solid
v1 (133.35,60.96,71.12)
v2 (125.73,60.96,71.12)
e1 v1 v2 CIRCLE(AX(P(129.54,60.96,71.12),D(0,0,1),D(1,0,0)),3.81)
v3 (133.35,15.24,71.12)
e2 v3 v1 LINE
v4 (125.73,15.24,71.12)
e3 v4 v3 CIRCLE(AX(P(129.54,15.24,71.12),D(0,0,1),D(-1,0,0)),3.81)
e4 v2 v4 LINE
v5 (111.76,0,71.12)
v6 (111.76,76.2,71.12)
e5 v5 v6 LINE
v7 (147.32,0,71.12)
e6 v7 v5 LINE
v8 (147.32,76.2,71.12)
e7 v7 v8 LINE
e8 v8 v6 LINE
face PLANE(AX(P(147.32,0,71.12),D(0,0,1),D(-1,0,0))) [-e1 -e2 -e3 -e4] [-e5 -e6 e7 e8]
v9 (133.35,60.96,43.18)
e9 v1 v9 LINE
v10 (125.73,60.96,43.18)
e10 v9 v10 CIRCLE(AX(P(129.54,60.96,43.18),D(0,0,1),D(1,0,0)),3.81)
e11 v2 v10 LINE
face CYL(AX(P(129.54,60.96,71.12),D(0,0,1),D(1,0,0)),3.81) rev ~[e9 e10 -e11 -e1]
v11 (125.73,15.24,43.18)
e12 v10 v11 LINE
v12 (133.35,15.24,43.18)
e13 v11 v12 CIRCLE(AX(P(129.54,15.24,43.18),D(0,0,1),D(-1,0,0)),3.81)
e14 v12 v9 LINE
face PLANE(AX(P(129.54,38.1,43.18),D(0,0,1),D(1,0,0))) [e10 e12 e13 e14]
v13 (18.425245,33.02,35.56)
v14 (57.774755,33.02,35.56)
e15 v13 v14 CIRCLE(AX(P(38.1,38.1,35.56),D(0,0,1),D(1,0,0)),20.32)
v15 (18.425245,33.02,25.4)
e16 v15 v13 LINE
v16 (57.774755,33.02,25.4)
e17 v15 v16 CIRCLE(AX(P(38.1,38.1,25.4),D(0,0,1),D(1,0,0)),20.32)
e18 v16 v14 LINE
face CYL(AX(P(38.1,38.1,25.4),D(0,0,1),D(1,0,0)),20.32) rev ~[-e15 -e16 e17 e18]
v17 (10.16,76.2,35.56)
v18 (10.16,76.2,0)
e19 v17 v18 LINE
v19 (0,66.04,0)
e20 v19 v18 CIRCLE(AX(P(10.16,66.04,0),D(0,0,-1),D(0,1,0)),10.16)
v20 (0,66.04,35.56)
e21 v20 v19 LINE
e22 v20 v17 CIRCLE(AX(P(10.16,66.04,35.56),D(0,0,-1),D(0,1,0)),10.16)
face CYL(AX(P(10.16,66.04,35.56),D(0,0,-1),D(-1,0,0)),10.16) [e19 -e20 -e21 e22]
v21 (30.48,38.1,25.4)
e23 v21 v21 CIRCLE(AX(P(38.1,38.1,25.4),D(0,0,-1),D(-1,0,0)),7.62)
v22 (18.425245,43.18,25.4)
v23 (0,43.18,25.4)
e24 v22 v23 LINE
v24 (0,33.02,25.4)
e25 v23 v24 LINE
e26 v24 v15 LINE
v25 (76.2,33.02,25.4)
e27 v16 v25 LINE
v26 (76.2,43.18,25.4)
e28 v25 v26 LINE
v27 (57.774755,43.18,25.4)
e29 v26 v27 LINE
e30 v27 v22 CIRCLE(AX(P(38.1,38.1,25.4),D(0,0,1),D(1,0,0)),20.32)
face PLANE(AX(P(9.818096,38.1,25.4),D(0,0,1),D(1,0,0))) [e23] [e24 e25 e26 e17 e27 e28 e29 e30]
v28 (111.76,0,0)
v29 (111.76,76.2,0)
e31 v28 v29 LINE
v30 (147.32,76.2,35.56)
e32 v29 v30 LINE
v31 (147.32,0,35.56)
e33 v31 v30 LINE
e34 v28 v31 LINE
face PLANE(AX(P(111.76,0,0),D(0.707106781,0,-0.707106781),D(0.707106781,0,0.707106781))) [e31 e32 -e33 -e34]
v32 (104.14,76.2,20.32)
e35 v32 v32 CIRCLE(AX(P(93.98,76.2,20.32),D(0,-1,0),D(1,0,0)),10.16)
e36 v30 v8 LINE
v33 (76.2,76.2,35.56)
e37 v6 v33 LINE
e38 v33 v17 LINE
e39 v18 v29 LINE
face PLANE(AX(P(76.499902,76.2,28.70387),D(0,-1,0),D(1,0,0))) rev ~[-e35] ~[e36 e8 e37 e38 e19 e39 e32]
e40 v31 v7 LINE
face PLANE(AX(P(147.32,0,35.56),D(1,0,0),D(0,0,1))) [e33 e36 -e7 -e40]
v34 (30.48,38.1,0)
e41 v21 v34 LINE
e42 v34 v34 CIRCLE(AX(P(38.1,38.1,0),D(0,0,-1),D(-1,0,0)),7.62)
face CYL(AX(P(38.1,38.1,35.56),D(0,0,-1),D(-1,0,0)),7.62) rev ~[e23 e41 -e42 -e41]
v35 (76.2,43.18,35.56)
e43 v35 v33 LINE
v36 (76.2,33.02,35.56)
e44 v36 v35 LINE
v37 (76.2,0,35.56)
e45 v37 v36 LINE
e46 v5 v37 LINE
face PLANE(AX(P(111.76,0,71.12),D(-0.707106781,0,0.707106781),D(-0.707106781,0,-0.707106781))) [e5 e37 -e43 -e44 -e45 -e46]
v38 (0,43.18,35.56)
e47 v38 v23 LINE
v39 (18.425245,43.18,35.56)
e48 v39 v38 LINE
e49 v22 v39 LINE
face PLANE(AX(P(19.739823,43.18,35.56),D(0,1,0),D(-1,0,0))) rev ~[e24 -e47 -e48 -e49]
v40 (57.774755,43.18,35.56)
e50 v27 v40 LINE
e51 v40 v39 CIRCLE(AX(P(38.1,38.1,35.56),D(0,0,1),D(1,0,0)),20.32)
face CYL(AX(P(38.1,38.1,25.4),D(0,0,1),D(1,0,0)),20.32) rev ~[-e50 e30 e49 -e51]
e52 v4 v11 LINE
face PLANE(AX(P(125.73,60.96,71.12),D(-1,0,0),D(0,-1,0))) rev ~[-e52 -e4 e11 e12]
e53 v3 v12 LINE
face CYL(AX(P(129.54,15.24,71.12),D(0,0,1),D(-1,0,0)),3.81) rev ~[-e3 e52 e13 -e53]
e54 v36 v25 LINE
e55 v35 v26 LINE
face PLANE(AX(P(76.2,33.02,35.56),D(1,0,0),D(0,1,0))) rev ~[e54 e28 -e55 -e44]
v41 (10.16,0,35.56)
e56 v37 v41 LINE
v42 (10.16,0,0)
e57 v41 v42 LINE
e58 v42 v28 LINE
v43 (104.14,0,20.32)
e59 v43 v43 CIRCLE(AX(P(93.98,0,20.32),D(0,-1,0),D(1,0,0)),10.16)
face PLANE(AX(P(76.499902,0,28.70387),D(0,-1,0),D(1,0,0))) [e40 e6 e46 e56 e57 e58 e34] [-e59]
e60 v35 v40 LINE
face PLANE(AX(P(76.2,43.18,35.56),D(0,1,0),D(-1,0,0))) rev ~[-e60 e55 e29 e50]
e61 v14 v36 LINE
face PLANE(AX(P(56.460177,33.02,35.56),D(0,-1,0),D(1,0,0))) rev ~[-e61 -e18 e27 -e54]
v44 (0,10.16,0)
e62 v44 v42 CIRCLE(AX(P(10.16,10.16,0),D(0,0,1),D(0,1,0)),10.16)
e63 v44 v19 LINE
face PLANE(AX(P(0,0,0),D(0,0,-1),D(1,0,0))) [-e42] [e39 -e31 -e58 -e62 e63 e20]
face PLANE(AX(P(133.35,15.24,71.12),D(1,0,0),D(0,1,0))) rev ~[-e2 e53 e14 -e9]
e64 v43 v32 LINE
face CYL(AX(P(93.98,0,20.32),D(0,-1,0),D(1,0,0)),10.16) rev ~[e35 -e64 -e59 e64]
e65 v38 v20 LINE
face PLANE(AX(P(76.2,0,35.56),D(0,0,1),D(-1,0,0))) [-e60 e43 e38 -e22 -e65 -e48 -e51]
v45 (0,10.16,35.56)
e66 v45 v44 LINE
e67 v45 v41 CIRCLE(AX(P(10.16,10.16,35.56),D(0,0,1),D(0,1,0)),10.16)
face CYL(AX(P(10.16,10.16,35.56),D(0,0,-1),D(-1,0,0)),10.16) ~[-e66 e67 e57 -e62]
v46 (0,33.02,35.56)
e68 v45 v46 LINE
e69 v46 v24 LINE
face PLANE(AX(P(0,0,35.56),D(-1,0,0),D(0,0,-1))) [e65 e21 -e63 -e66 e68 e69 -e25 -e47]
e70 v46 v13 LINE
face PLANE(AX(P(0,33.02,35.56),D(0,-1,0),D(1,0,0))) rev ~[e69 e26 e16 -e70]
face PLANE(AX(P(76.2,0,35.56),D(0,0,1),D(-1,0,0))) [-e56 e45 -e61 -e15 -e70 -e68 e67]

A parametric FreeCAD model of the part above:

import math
import FreeCAD as App
import Part
import Sketcher
Q = App.Units.Quantity


def edges_at(feature, points):
    """Names of the edges that pass closest to the given points."""
    edges = feature.Shape.Edges
    near = lambda p: min(range(len(edges)), key=lambda i: edges[i].distToShape(Part.Vertex(*p))[0])
    return sorted({f"Edge{near(p) + 1}" for p in points})

doc = App.newDocument("Part")
body = doc.addObject("PartDesign::Body", "Body")

# Sketch on XZ plane
sketch1 = body.newObject("Sketcher::SketchObject", "Sketch")
sketch1.AttachmentSupport = (doc.getObject("XZ_Plane"), [""])
sketch1.MapMode = "FlatFace"
sketch1.addGeometry(Part.LineSegment(App.Vector(0, 35.56, 0), App.Vector(0, 0, 0)), False)
sketch1.addGeometry(Part.LineSegment(App.Vector(0, 0, 0), App.Vector(111.76, 0, 0)), False)
sketch1.addGeometry(Part.LineSegment(App.Vector(111.76, 0, 0), App.Vector(147.32, 35.56, 0)), False)
sketch1.addGeometry(Part.LineSegment(App.Vector(147.32, 35.56, 0), App.Vector(147.32, 71.12, 0)), False)
sketch1.addGeometry(Part.LineSegment(App.Vector(147.32, 71.12, 0), App.Vector(111.76, 71.12, 0)), False)
sketch1.addGeometry(Part.LineSegment(App.Vector(111.76, 71.12, 0), App.Vector(76.2, 35.56, 0)), False)
sketch1.addGeometry(Part.LineSegment(App.Vector(76.2, 35.56, 0), App.Vector(0, 35.56, 0)), False)
sketch1.addConstraint(Sketcher.Constraint("Coincident", 0, 2, 1, 1))
sketch1.addConstraint(Sketcher.Constraint("Coincident", 1, 2, 2, 1))
sketch1.addConstraint(Sketcher.Constraint("Coincident", 2, 2, 3, 1))
sketch1.addConstraint(Sketcher.Constraint("Coincident", 3, 2, 4, 1))
sketch1.addConstraint(Sketcher.Constraint("Coincident", 4, 2, 5, 1))
sketch1.addConstraint(Sketcher.Constraint("Coincident", 5, 2, 6, 1))
sketch1.addConstraint(Sketcher.Constraint("Coincident", 6, 2, 0, 1))
sketch1.addConstraint(Sketcher.Constraint("Vertical", 0))
sketch1.addConstraint(Sketcher.Constraint("Horizontal", 1))
sketch1.addConstraint(Sketcher.Constraint("Vertical", 3))
sketch1.addConstraint(Sketcher.Constraint("Horizontal", 4))
sketch1.addConstraint(Sketcher.Constraint("Horizontal", 6))
sketch1.addConstraint(Sketcher.Constraint("Coincident", 0, 2, -1, 1))
sketch1.addConstraint(Sketcher.Constraint("Parallel", 2, 5))
sketch1.addConstraint(Sketcher.Constraint("Horizontal", 2, 2, 5, 2))
sketch1.addConstraint(Sketcher.Constraint("Vertical", 1, 2, 4, 2))
sketch1.addConstraint(Sketcher.Constraint("Equal", 4, 0))
sketch1.addConstraint(Sketcher.Constraint("Equal", 0, 3))
sketch1.addConstraint(Sketcher.Constraint("DistanceX", 6, 2, 6, 1, Q("3 in")))
sketch1.addConstraint(Sketcher.Constraint("DistanceX", 1, 1, 1, 2, Q("4.4 in")))
pad1 = body.newObject("PartDesign::Pad", "Pad")
pad1.Profile = sketch1
pad1.Length = Q("3 in")
pad1.Reversed = True

# Sketch on XY plane
sketch2 = body.newObject("Sketcher::SketchObject", "Sketch001")
sketch2.AttachmentSupport = (doc.getObject("XY_Plane"), [""])
sketch2.MapMode = "FlatFace"
sketch2.AttachmentOffset = App.Placement(App.Vector(0, 0, 2.8 * 25.4), App.Rotation())
sketch2.addGeometry(Part.ArcOfCircle(Part.Circle(App.Vector(129.54, 60.96, 0), App.Vector(0, 0, 1), 3.81), math.radians(0), math.radians(180)), False)
sketch2.addGeometry(Part.LineSegment(App.Vector(125.73, 60.96, 0), App.Vector(125.73, 15.24, 0)), False)
sketch2.addGeometry(Part.ArcOfCircle(Part.Circle(App.Vector(129.54, 15.24, 0), App.Vector(0, 0, 1), 3.81), math.radians(180), math.radians(360)), False)
sketch2.addGeometry(Part.LineSegment(App.Vector(133.35, 15.24, 0), App.Vector(133.35, 60.96, 0)), False)
sketch2.addConstraint(Sketcher.Constraint("Tangent", 0, 2, 1, 1))
sketch2.addConstraint(Sketcher.Constraint("Tangent", 1, 2, 2, 1))
sketch2.addConstraint(Sketcher.Constraint("Tangent", 2, 2, 3, 1))
sketch2.addConstraint(Sketcher.Constraint("Tangent", 3, 2, 0, 1))
sketch2.addConstraint(Sketcher.Constraint("Vertical", 1))
sketch2.addConstraint(Sketcher.Constraint("Vertical", 3))
sketch2.addConstraint(Sketcher.Constraint("Radius", 0, Q("0.15 in")))
sketch2.addConstraint(Sketcher.Constraint("DistanceY", 1, 2, 1, 1, Q("1.8 in")))
sketch2.addConstraint(Sketcher.Constraint("DistanceX", -1, 1, 0, 3, Q("5.1 in")))
sketch2.addConstraint(Sketcher.Constraint("DistanceY", -1, 1, 0, 3, Q("2.4 in")))
pocket1 = body.newObject("PartDesign::Pocket", "Pocket")
pocket1.Profile = sketch2
pocket1.Length = Q("1.1 in")

# Sketch on XY plane
sketch3 = body.newObject("Sketcher::SketchObject", "Sketch002")
sketch3.AttachmentSupport = (doc.getObject("XY_Plane"), [""])
sketch3.MapMode = "FlatFace"
sketch3.AttachmentOffset = App.Placement(App.Vector(0, 0, 1.4 * 25.4), App.Rotation())
sketch3.addGeometry(Part.Circle(App.Vector(38.1, 38.1, 0), App.Vector(0, 0, 1), 7.62), False)
sketch3.addConstraint(Sketcher.Constraint("Diameter", 0, Q("0.6 in")))
sketch3.addConstraint(Sketcher.Constraint("DistanceX", -1, 1, 0, 3, Q("1.5 in")))
sketch3.addConstraint(Sketcher.Constraint("DistanceY", -1, 1, 0, 3, Q("1.5 in")))
doc.recompute()
hole = body.newObject("PartDesign::Hole", "Hole")
hole.Profile = sketch3
hole.ThreadType = "None"
hole.Diameter = Q("0.6 in")
hole.DepthType = "ThroughAll"
hole.HoleCutType = "Counterbore"
hole.HoleCutDiameter = Q("1.6 in")
hole.HoleCutDepth = Q("0.4 in")

# Sketch on XY plane
sketch4 = body.newObject("Sketcher::SketchObject", "Sketch003")
sketch4.AttachmentSupport = (doc.getObject("XY_Plane"), [""])
sketch4.MapMode = "FlatFace"
sketch4.AttachmentOffset = App.Placement(App.Vector(0, 0, 1.4 * 25.4), App.Rotation())
sketch4.addGeometry(Part.LineSegment(App.Vector(19.739823, 43.18, 0), App.Vector(0, 43.18, 0)), False)
sketch4.addGeometry(Part.LineSegment(App.Vector(0, 43.18, 0), App.Vector(0, 33.02, 0)), False)
sketch4.addGeometry(Part.LineSegment(App.Vector(0, 33.02, 0), App.Vector(19.739823, 33.02, 0)), False)
sketch4.addGeometry(Part.ArcOfCircle(Part.Circle(App.Vector(38.1, 38.1, 0), App.Vector(0, 0, 1), 19.05), math.radians(164.53399), math.radians(195.46601)), False)
sketch4.addGeometry(Part.LineSegment(App.Vector(76.2, 43.18, 0), App.Vector(56.460177, 43.18, 0)), False)
sketch4.addGeometry(Part.ArcOfCircle(Part.Circle(App.Vector(38.100053, 38.100007, 0), App.Vector(0, 0, 1), 19.049947), math.radians(-0.000021), math.radians(15.466032)), False)
sketch4.addGeometry(Part.ArcOfCircle(Part.Circle(App.Vector(38.100053, 38.099993, 0), App.Vector(0, 0, 1), 19.049947), math.radians(-15.466032), math.radians(0.000021)), False)
sketch4.addGeometry(Part.LineSegment(App.Vector(56.460177, 33.02, 0), App.Vector(76.2, 33.02, 0)), False)
sketch4.addGeometry(Part.LineSegment(App.Vector(76.2, 33.02, 0), App.Vector(76.2, 43.18, 0)), False)
sketch4.addConstraint(Sketcher.Constraint("Coincident", 0, 2, 1, 1))
sketch4.addConstraint(Sketcher.Constraint("Coincident", 1, 2, 2, 1))
sketch4.addConstraint(Sketcher.Constraint("Coincident", 2, 2, 3, 2))
sketch4.addConstraint(Sketcher.Constraint("Coincident", 3, 1, 0, 1))
sketch4.addConstraint(Sketcher.Constraint("Coincident", 4, 2, 5, 2))
sketch4.addConstraint(Sketcher.Constraint("Coincident", 5, 1, 6, 2))
sketch4.addConstraint(Sketcher.Constraint("Coincident", 6, 1, 7, 1))
sketch4.addConstraint(Sketcher.Constraint("Coincident", 7, 2, 8, 1))
sketch4.addConstraint(Sketcher.Constraint("Coincident", 8, 2, 4, 1))
sketch4.addConstraint(Sketcher.Constraint("Horizontal", 0))
sketch4.addConstraint(Sketcher.Constraint("Vertical", 1))
sketch4.addConstraint(Sketcher.Constraint("Horizontal", 2))
sketch4.addConstraint(Sketcher.Constraint("Horizontal", 4))
sketch4.addConstraint(Sketcher.Constraint("Horizontal", 7))
sketch4.addConstraint(Sketcher.Constraint("Vertical", 8))
sketch4.addConstraint(Sketcher.Constraint("PointOnObject", 0, 2, -2))
sketch4.addConstraint(Sketcher.Constraint("Radius", 3, Q("0.75 in")))
sketch4.addConstraint(Sketcher.Constraint("DistanceY", 1, 2, 1, 1, Q("0.4 in")))
sketch4.addConstraint(Sketcher.Constraint("DistanceY", 8, 1, 8, 2, Q("0.4 in")))
sketch4.addConstraint(Sketcher.Constraint("DistanceX", -1, 1, 7, 2, Q("3 in")))
sketch4.addConstraint(Sketcher.Constraint("DistanceX", -1, 1, 3, 3, Q("1.5 in")))
sketch4.addConstraint(Sketcher.Constraint("DistanceY", -1, 1, 3, 3, Q("1.5 in")))
sketch4.addConstraint(Sketcher.Constraint("DistanceY", -1, 1, 0, 2, Q("1.7 in")))
sketch4.addConstraint(Sketcher.Constraint("DistanceY", -1, 1, 4, 2, Q("1.7 in")))
sketch4.addConstraint(Sketcher.Constraint("DistanceY", -1, 1, 5, 1, Q("1.5 in")))
sketch4.addConstraint(Sketcher.Constraint("DistanceX", -1, 1, 5, 1, Q("2.25 in")))
sketch4.addConstraint(Sketcher.Constraint("Radius", 5, 19.049947))
sketch4.addConstraint(Sketcher.Constraint("Radius", 6, 19.049947))
sketch4.addConstraint(Sketcher.Constraint("DistanceX", 4, 2, 4, 1, 19.739823))
sketch4.addConstraint(Sketcher.Constraint("DistanceX", 7, 1, 7, 2, 19.739823))
pocket2 = body.newObject("PartDesign::Pocket", "Pocket001")
pocket2.Profile = sketch4
pocket2.Length = Q("0.4 in")

# Sketch on XZ plane
sketch5 = body.newObject("Sketcher::SketchObject", "Sketch004")
sketch5.AttachmentSupport = (doc.getObject("XZ_Plane"), [""])
sketch5.MapMode = "FlatFace"
sketch5.addGeometry(Part.Circle(App.Vector(93.98, 20.32, 0), App.Vector(0, 0, 1), 10.16), False)
sketch5.addConstraint(Sketcher.Constraint("Diameter", 0, Q("0.8 in")))
sketch5.addConstraint(Sketcher.Constraint("DistanceX", -1, 1, 0, 3, Q("3.7 in")))
sketch5.addConstraint(Sketcher.Constraint("DistanceY", -1, 1, 0, 3, Q("0.8 in")))
pocket3 = body.newObject("PartDesign::Pocket", "Pocket002")
pocket3.Profile = sketch5
pocket3.Type = "ThroughAll"
doc.recompute()

fillet = body.newObject("PartDesign::Fillet", "Fillet")
fillet.Base = (pocket3, edges_at(pocket3, [(0, 0, 17.78), (0, 76.2, 17.78)]))
fillet.Radius = Q("0.4 in")

doc.recompute()
